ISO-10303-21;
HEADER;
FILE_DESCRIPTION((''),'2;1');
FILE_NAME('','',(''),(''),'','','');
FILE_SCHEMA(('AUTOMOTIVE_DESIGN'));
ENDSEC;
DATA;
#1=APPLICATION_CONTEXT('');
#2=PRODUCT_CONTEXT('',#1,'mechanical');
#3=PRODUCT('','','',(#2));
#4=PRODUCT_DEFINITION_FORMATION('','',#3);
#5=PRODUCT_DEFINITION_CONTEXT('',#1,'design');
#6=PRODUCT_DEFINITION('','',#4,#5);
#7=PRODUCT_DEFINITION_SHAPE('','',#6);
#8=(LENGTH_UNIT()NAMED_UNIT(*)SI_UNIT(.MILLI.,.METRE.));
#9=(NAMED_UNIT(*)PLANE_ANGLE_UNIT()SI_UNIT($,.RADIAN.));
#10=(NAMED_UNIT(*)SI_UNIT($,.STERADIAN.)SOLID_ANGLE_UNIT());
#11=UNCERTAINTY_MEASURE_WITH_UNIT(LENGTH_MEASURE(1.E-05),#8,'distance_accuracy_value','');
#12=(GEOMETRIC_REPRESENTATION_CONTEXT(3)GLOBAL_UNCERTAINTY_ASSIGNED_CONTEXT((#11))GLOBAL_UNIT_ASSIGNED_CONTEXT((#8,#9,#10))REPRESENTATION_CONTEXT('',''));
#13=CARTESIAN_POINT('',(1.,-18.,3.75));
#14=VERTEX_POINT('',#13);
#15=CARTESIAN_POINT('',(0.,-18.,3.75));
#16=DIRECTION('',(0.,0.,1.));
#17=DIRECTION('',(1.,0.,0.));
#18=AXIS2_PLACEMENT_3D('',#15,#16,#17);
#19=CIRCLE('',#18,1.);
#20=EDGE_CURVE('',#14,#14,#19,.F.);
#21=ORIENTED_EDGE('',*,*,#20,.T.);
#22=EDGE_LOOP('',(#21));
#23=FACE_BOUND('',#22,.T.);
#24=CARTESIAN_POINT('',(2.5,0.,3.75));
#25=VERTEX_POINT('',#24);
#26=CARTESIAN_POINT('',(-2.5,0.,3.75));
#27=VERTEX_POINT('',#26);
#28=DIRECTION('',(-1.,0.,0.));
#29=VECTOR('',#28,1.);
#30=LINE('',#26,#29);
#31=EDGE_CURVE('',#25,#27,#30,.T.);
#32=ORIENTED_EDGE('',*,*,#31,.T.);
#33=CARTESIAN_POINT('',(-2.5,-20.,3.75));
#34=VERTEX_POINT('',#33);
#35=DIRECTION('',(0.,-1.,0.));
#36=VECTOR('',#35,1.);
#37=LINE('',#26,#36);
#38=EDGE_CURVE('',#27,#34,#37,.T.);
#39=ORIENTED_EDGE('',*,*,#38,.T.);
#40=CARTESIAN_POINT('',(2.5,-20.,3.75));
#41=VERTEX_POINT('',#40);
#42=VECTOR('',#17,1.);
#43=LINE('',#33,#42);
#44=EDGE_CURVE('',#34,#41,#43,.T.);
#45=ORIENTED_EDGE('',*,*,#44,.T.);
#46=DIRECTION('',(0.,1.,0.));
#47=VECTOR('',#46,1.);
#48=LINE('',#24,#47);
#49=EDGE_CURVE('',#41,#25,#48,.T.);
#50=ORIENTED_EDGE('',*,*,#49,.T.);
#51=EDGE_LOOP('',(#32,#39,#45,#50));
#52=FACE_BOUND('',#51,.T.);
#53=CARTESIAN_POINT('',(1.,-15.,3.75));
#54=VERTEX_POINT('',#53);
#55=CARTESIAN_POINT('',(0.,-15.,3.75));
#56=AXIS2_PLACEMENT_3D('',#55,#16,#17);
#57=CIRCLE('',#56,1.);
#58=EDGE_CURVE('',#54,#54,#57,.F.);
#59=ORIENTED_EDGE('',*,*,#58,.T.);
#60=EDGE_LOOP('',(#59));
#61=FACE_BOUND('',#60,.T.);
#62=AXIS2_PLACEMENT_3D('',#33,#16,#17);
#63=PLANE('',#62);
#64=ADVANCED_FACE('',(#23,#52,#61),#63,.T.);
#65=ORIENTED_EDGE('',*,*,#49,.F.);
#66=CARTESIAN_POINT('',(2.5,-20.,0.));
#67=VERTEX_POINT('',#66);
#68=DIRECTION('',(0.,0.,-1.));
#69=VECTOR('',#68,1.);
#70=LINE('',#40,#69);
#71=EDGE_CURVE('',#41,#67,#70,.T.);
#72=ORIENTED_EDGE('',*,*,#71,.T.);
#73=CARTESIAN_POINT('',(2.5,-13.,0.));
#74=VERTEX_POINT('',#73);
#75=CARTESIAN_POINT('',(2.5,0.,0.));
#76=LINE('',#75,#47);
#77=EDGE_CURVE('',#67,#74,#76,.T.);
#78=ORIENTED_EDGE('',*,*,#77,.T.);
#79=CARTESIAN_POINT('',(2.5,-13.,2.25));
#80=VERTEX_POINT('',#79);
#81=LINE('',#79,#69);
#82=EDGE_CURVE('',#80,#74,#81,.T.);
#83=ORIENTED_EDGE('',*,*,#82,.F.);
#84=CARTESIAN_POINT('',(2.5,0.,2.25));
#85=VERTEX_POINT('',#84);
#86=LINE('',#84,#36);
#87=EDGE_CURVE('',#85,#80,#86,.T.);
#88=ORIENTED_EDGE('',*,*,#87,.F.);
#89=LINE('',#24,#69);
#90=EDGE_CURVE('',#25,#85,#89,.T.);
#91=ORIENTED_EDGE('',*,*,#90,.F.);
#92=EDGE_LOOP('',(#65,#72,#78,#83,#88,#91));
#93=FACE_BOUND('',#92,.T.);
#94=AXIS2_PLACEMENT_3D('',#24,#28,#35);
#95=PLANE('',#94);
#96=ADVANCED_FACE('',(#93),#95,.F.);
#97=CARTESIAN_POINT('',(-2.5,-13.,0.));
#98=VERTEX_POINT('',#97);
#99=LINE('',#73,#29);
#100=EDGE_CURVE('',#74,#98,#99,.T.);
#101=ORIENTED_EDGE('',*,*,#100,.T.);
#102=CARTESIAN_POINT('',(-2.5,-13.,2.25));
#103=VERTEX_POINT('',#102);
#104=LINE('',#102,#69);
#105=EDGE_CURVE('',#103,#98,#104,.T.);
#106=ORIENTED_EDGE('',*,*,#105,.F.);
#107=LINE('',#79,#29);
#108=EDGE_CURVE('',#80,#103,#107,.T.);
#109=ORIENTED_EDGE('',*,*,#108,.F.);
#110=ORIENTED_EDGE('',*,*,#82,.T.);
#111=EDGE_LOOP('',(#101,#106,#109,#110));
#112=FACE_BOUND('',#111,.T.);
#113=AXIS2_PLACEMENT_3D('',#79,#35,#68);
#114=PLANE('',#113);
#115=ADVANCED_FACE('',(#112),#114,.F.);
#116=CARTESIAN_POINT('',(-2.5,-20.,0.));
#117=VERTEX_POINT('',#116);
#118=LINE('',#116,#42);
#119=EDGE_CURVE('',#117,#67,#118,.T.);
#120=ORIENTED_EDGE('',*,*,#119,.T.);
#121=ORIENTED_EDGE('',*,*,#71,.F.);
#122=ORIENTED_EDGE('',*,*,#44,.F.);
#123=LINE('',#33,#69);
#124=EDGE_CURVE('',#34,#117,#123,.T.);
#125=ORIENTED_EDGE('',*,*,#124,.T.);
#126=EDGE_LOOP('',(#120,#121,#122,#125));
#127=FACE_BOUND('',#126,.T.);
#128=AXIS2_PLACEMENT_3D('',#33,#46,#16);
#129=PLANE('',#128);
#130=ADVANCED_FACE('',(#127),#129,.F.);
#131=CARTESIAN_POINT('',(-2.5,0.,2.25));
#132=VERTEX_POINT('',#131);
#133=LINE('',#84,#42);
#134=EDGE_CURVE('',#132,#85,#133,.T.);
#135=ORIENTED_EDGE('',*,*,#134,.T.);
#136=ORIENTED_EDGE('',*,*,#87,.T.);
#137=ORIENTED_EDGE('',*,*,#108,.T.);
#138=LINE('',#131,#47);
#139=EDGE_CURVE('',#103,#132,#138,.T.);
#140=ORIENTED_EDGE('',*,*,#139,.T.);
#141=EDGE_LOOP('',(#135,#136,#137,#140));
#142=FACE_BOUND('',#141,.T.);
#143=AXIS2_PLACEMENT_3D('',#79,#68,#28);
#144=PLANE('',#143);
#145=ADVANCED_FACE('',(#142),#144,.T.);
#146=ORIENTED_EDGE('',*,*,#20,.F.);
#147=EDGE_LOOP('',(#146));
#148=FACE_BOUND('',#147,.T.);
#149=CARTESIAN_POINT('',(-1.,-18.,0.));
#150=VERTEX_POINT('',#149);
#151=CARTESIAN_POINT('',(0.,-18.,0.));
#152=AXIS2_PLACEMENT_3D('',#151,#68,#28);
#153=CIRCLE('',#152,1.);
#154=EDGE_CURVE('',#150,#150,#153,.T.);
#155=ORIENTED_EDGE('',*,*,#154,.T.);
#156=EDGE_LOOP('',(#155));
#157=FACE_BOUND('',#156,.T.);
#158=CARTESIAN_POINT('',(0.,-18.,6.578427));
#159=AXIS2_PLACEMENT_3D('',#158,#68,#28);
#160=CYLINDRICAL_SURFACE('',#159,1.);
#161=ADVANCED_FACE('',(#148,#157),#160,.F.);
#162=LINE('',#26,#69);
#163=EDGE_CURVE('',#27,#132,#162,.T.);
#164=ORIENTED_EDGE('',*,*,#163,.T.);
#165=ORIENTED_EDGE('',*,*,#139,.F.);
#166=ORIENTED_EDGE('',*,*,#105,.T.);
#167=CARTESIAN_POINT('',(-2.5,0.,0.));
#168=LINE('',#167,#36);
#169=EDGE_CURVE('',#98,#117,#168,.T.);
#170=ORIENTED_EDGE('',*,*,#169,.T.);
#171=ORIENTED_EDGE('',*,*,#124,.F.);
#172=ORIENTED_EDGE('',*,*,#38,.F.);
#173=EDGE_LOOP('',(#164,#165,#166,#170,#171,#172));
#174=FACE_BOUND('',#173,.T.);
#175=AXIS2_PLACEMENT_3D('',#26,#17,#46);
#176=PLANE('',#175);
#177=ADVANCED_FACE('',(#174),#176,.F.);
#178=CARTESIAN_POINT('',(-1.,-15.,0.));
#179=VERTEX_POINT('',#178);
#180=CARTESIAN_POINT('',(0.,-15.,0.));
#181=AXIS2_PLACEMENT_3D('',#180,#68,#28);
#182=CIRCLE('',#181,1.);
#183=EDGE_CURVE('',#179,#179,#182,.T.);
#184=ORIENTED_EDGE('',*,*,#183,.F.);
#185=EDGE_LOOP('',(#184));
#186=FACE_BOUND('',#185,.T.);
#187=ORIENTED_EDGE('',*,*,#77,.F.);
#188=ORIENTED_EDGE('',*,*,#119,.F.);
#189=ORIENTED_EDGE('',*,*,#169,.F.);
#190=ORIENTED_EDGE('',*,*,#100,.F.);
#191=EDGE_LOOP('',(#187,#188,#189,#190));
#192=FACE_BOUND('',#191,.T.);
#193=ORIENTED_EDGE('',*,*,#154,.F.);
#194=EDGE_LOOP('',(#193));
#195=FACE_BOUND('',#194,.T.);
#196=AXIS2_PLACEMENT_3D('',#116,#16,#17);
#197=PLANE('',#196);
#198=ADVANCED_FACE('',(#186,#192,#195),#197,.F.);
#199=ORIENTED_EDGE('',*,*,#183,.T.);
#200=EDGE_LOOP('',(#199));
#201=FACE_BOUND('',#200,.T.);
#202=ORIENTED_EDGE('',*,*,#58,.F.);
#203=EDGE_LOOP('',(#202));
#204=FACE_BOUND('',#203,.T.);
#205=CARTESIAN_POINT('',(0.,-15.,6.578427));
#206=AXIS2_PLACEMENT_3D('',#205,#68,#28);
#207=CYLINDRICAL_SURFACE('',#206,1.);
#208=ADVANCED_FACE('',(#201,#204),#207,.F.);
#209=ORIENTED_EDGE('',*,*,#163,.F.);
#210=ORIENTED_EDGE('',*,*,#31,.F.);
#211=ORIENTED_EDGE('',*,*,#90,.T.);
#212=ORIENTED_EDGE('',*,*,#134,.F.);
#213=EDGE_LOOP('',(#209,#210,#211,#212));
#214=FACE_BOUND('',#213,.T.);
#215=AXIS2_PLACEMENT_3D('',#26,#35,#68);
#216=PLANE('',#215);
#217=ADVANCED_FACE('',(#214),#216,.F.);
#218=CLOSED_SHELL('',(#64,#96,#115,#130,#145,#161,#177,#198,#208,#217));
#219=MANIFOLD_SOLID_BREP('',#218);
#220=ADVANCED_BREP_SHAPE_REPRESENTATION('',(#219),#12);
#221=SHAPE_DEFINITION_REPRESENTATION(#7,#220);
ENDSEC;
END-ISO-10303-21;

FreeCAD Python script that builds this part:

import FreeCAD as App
import Part
import Sketcher

doc = App.newDocument("Part")
body = doc.addObject("PartDesign::Body", "Body")

sketch1 = doc.addObject("Sketcher::SketchObject", "Sketch")
body.addObject(sketch1)
sketch1.AttachmentSupport = (doc.XY_Plane, [""])
sketch1.MapMode = "FlatFace"
sketch1.addGeometry([
    Part.LineSegment(App.Vector(-2.5, 0, 0), App.Vector(-2.5, -20, 0)),
    Part.LineSegment(App.Vector(-2.5, -20, 0), App.Vector(2.5, -20, 0)),
    Part.LineSegment(App.Vector(2.5, -20, 0), App.Vector(2.5, 0, 0)),
    Part.LineSegment(App.Vector(2.5, 0, 0), App.Vector(-2.5, 0, 0)),
], False)
sketch1.addConstraint([
    Sketcher.Constraint("Coincident", 0, 2, 1, 1),
    Sketcher.Constraint("Coincident", 1, 2, 2, 1),
    Sketcher.Constraint("Coincident", 2, 2, 3, 1),
    Sketcher.Constraint("Coincident", 3, 2, 0, 1),
    Sketcher.Constraint("Vertical", 0),
    Sketcher.Constraint("Horizontal", 1),
    Sketcher.Constraint("Vertical", 2),
    Sketcher.Constraint("Horizontal", 3),
    Sketcher.Constraint("Symmetric", 2, 2, 3, 2, -1, 1),
    Sketcher.Constraint("DistanceX", 1, 1, 1, 2, 5.0),
    Sketcher.Constraint("DistanceY", 0, 2, 0, 1, 20.0),
])
pad1 = doc.addObject("PartDesign::Pad", "Pad")
body.addObject(pad1)
pad1.Profile = sketch1
pad1.Length = 3.75

sketch2 = doc.addObject("Sketcher::SketchObject", "Sketch001")
body.addObject(sketch2)
sketch2.AttachmentSupport = (doc.XY_Plane, [""])
sketch2.MapMode = "FlatFace"
sketch2.addGeometry([
    Part.LineSegment(App.Vector(2.5, 0, 0), App.Vector(2.5, -13, 0)),
    Part.LineSegment(App.Vector(2.5, -13, 0), App.Vector(-2.5, -13, 0)),
    Part.LineSegment(App.Vector(-2.5, -13, 0), App.Vector(-2.5, 0, 0)),
    Part.LineSegment(App.Vector(-2.5, 0, 0), App.Vector(2.5, 0, 0)),
], False)
sketch2.addConstraint([
    Sketcher.Constraint("Coincident", 0, 2, 1, 1),
    Sketcher.Constraint("Coincident", 1, 2, 2, 1),
    Sketcher.Constraint("Coincident", 2, 2, 3, 1),
    Sketcher.Constraint("Coincident", 3, 2, 0, 1),
    Sketcher.Constraint("Vertical", 0),
    Sketcher.Constraint("Horizontal", 1),
    Sketcher.Constraint("Vertical", 2),
    Sketcher.Constraint("Horizontal", 3),
    Sketcher.Constraint("Symmetric", 2, 2, 3, 2, -1, 1),
    Sketcher.Constraint("DistanceX", 1, 2, 1, 1, 5.0),
    Sketcher.Constraint("DistanceY", 0, 2, 0, 1, 13.0),
])
pocket1 = doc.addObject("PartDesign::Pocket", "Pocket")
body.addObject(pocket1)
pocket1.Profile = sketch2
pocket1.Length = 2.25
pocket1.Reversed = True

sketch3 = doc.addObject("Sketcher::SketchObject", "Sketch002")
body.addObject(sketch3)
sketch3.AttachmentSupport = (doc.XY_Plane, [""])
sketch3.MapMode = "FlatFace"
sketch3.addGeometry([
    Part.Circle(App.Vector(0, -18, 0), App.Vector(0, 0, 1), 1),
    Part.Circle(App.Vector(0, -15, 0), App.Vector(0, 0, 1), 1),
], False)
sketch3.addConstraint([
    Sketcher.Constraint("Equal", 0, 1),
    Sketcher.Constraint("PointOnObject", 0, 3, -2),
    Sketcher.Constraint("PointOnObject", 1, 3, -2),
    Sketcher.Constraint("Diameter", 0, 2.0),
    Sketcher.Constraint("DistanceY", 0, 3, -1, 1, 18.0),
    Sketcher.Constraint("DistanceY", 1, 3, -1, 1, 15.0),
])
pocket2 = doc.addObject("PartDesign::Pocket", "Pocket001")
body.addObject(pocket2)
pocket2.Profile = sketch3
pocket2.Length = 3.75
pocket2.Reversed = True

doc.recompute()
